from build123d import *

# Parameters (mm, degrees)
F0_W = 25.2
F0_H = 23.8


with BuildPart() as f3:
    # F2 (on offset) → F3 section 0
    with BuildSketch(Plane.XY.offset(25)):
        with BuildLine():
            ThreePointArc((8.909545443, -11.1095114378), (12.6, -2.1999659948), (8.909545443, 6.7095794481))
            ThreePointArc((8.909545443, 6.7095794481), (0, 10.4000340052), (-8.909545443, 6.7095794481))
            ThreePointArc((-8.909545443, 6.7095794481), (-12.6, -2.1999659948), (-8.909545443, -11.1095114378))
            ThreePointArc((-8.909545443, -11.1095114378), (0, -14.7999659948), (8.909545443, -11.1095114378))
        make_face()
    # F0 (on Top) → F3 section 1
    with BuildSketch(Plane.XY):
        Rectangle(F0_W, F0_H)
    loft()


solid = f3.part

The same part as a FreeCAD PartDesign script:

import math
import FreeCAD as App
import Part
import Sketcher
from FreeCAD import Vector
Q = App.Units.Quantity


def add_polygon(sketch, points):
    """Adds a closed chain of lines whose ends are joined by coincident constraints."""
    first, n = sketch.GeometryCount, len(points)
    for a, b in zip(points, points[1:] + points[:1]):
        sketch.addGeometry(Part.LineSegment(App.Vector(*a, 0), App.Vector(*b, 0)), False)
    for i in range(n):
        sketch.addConstraint(Sketcher.Constraint("Coincident", first + i, 2, first + (i + 1) % n, 1))

doc = App.newDocument("Part")
params = doc.addObject("Spreadsheet::Sheet", "Params")
for row, (alias, value) in enumerate([
    ("sketch1_radius", "12.6 mm"),
    ("sketch2_width", "25.2 mm"),
    ("sketch2_height", "23.8 mm"),
], start=1):
    params.set(f"A{row}", alias)
    params.set(f"B{row}", "=" + value)
    params.setAlias(f"B{row}", alias)

body = doc.addObject("PartDesign::Body", "Body")

# Sketch on XY plane
sketch1 = doc.addObject("Sketcher::SketchObject", "Sketch")
body.addObject(sketch1)
sketch1.AttachmentSupport = (doc.XY_Plane, [""])
sketch1.MapMode = "FlatFace"
sketch1.AttachmentOffset = App.Placement(Vector(0, 0, 25), App.Rotation())
sketch1.addGeometry([
    Part.ArcOfCircle(Part.Circle(Vector(0, -2, 0), Vector(0, 0, 1), 13), math.radians(-45), math.radians(45)),
    Part.ArcOfCircle(Part.Circle(Vector(0, -2, 0), Vector(0, 0, 1), 13), math.radians(45), math.radians(135)),
    Part.ArcOfCircle(Part.Circle(Vector(0, -2, 0), Vector(0, 0, 1), 13), math.radians(135), math.radians(225)),
    Part.ArcOfCircle(Part.Circle(Vector(0, -2, 0), Vector(0, 0, 1), 13), math.radians(-135), math.radians(-45)),
], False)
sketch1.addConstraint([
    Sketcher.Constraint("Tangent", 0, 2, 1, 1),
    Sketcher.Constraint("Tangent", 1, 2, 2, 1),
    Sketcher.Constraint("Tangent", 2, 2, 3, 1),
    Sketcher.Constraint("Tangent", 3, 2, 0, 1),
    Sketcher.Constraint("Equal", 0, 1),
    Sketcher.Constraint("Symmetric", 0, 2, 1, 2, -2),
    Sketcher.Constraint("Horizontal", 2, 2, 3, 2),
    Sketcher.Constraint("Vertical", 1, 2, 2, 2),
    Sketcher.Constraint("Radius", 0, Q("12.6 mm")),
    Sketcher.Constraint("DistanceY", -1, 1, 0, 2, Q("6.709579 mm")),
    Sketcher.Constraint("DistanceY", 2, 2, -1, 1, Q("11.109511 mm")),
])
sketch1.setExpression("Constraints[8]", "Params.sketch1_radius")

# Sketch on XY plane
sketch2 = doc.addObject("Sketcher::SketchObject", "Sketch001")
body.addObject(sketch2)
sketch2.AttachmentSupport = (doc.XY_Plane, [""])
sketch2.MapMode = "FlatFace"
add_polygon(sketch2, [(-13, 12), (-13, -12), (13, -12), (13, 12)])  # lines 0-3
sketch2.addConstraint([
    Sketcher.Constraint("Vertical", 0),
    Sketcher.Constraint("Horizontal", 1),
    Sketcher.Constraint("Vertical", 2),
    Sketcher.Constraint("Horizontal", 3),
    Sketcher.Constraint("Symmetric", 0, 2, 2, 2, -1, 1),
    Sketcher.Constraint("DistanceX", 1, 1, 1, 2, Q("25.2 mm")),
    Sketcher.Constraint("DistanceY", 0, 2, 0, 1, Q("23.8 mm")),
])
sketch2.setExpression("Constraints[9]", "Params.sketch2_width")
sketch2.setExpression("Constraints[10]", "Params.sketch2_height")

additiveloft = doc.addObject("PartDesign::AdditiveLoft", "AdditiveLoft")
body.addObject(additiveloft)
additiveloft.Profile = sketch1
additiveloft.Sections = [sketch2]

doc.recompute()
